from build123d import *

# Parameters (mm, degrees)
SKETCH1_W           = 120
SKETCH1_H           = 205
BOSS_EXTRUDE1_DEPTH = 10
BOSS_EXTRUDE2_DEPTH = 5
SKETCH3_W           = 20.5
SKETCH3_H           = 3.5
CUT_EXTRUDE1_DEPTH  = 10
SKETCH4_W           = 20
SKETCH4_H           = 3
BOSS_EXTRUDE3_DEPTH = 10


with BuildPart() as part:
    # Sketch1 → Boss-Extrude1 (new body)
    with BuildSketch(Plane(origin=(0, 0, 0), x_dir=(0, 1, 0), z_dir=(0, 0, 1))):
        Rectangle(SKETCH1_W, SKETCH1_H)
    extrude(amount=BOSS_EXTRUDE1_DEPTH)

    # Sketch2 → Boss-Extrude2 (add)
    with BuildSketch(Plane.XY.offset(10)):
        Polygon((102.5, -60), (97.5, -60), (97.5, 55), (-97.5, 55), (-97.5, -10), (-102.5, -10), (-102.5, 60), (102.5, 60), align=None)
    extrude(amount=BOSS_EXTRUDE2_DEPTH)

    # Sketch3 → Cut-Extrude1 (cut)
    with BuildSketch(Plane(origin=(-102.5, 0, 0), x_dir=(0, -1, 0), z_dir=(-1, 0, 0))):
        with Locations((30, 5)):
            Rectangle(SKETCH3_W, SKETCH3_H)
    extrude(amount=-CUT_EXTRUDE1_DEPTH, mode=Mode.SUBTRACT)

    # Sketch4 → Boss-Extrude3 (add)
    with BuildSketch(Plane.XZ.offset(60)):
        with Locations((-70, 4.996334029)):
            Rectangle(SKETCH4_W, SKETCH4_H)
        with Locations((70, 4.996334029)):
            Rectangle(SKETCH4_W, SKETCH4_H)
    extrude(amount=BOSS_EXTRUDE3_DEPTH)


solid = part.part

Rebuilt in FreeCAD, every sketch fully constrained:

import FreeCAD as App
import Part
import Sketcher

doc = App.newDocument("Part")
body = doc.addObject("PartDesign::Body", "Body")

# Sketch on XY plane
sketch1 = doc.addObject("Sketcher::SketchObject", "Sketch")
body.addObject(sketch1)
sketch1.AttachmentSupport = (doc.XY_Plane, [""])
sketch1.MapMode = "FlatFace"
sketch1.addGeometry([
    Part.LineSegment(App.Vector(-102, -60, 0), App.Vector(102, -60, 0)),
    Part.LineSegment(App.Vector(102, -60, 0), App.Vector(102, 60, 0)),
    Part.LineSegment(App.Vector(102, 60, 0), App.Vector(-102, 60, 0)),
    Part.LineSegment(App.Vector(-102, 60, 0), App.Vector(-102, -60, 0)),
], False)
sketch1.addConstraint([
    Sketcher.Constraint("Coincident", 0, 2, 1, 1),
    Sketcher.Constraint("Coincident", 1, 2, 2, 1),
    Sketcher.Constraint("Coincident", 2, 2, 3, 1),
    Sketcher.Constraint("Coincident", 3, 2, 0, 1),
    Sketcher.Constraint("Horizontal", 0),
    Sketcher.Constraint("Vertical", 1),
    Sketcher.Constraint("Horizontal", 2),
    Sketcher.Constraint("Vertical", 3),
    Sketcher.Constraint("Symmetric", 0, 2, 2, 2, -1, 1),
    Sketcher.Constraint("DistanceX", 0, 1, 0, 2, 205.0),
    Sketcher.Constraint("DistanceY", 1, 1, 1, 2, 120.0),
])
pad1 = doc.addObject("PartDesign::Pad", "Pad")
body.addObject(pad1)
pad1.Profile = sketch1
pad1.Length = 10

# Sketch on XY plane
sketch2 = doc.addObject("Sketcher::SketchObject", "Sketch001")
body.addObject(sketch2)
sketch2.AttachmentSupport = (doc.XY_Plane, [""])
sketch2.MapMode = "FlatFace"
sketch2.AttachmentOffset = App.Placement(App.Vector(0, 0, 10), App.Rotation())
sketch2.addGeometry([
    Part.LineSegment(App.Vector(98, -60, 0), App.Vector(102, -60, 0)),  # 0
    Part.LineSegment(App.Vector(102, -60, 0), App.Vector(102, 60, 0)),  # 1
    Part.LineSegment(App.Vector(102, 60, 0), App.Vector(-102, 60, 0)),  # 2
    Part.LineSegment(App.Vector(-102, 60, 0), App.Vector(-102, -10, 0)),  # 3
    Part.LineSegment(App.Vector(-102, -10, 0), App.Vector(-98, -10, 0)),  # 4
    Part.LineSegment(App.Vector(-98, -10, 0), App.Vector(-98, 55, 0)),  # 5
    Part.LineSegment(App.Vector(-98, 55, 0), App.Vector(98, 55, 0)),  # 6
    Part.LineSegment(App.Vector(98, 55, 0), App.Vector(98, -60, 0)),  # 7
], False)
sketch2.addConstraint([
    Sketcher.Constraint("Coincident", 0, 2, 1, 1),
    Sketcher.Constraint("Coincident", 1, 2, 2, 1),
    Sketcher.Constraint("Coincident", 2, 2, 3, 1),
    Sketcher.Constraint("Coincident", 3, 2, 4, 1),
    Sketcher.Constraint("Coincident", 4, 2, 5, 1),
    Sketcher.Constraint("Coincident", 5, 2, 6, 1),
    Sketcher.Constraint("Coincident", 6, 2, 7, 1),
    Sketcher.Constraint("Coincident", 7, 2, 0, 1),
    Sketcher.Constraint("Horizontal", 0),
    Sketcher.Constraint("Vertical", 1),
    Sketcher.Constraint("Horizontal", 2),
    Sketcher.Constraint("Vertical", 3),
    Sketcher.Constraint("Horizontal", 4),
    Sketcher.Constraint("Vertical", 5),
    Sketcher.Constraint("Horizontal", 6),
    Sketcher.Constraint("Vertical", 7),
    Sketcher.Constraint("Symmetric", 0, 2, 2, 2, -1, 1),
    Sketcher.Constraint("Equal", 0, 4),
    Sketcher.Constraint("DistanceX", 0, 1, 0, 2, 5.0),
    Sketcher.Constraint("DistanceX", 2, 2, 2, 1, 205.0),
    Sketcher.Constraint("DistanceY", 1, 1, 1, 2, 120.0),
    Sketcher.Constraint("DistanceY", 3, 2, 3, 1, 70.0),
    Sketcher.Constraint("DistanceY", 5, 1, 5, 2, 65.0),
])
pad2 = doc.addObject("PartDesign::Pad", "Pad001")
body.addObject(pad2)
pad2.Profile = sketch2
pad2.Length = 5

# Sketch on YZ plane
sketch3 = doc.addObject("Sketcher::SketchObject", "Sketch002")
body.addObject(sketch3)
sketch3.AttachmentSupport = (doc.YZ_Plane, [""])
sketch3.MapMode = "FlatFace"
sketch3.AttachmentOffset = App.Placement(App.Vector(0, 0, -102.5), App.Rotation())
sketch3.addGeometry([
    Part.LineSegment(App.Vector(-19.8, 6.8, 0), App.Vector(-19.8, 3.2, 0)),
    Part.LineSegment(App.Vector(-19.8, 3.2, 0), App.Vector(-40.2, 3.2, 0)),
    Part.LineSegment(App.Vector(-40.2, 3.2, 0), App.Vector(-40.2, 6.8, 0)),
    Part.LineSegment(App.Vector(-40.2, 6.8, 0), App.Vector(-19.8, 6.8, 0)),
], False)
sketch3.addConstraint([
    Sketcher.Constraint("Coincident", 0, 2, 1, 1),
    Sketcher.Constraint("Coincident", 1, 2, 2, 1),
    Sketcher.Constraint("Coincident", 2, 2, 3, 1),
    Sketcher.Constraint("Coincident", 3, 2, 0, 1),
    Sketcher.Constraint("Vertical", 0),
    Sketcher.Constraint("Horizontal", 1),
    Sketcher.Constraint("Vertical", 2),
    Sketcher.Constraint("Horizontal", 3),
    Sketcher.Constraint("DistanceX", 1, 2, 1, 1, 20.5),
    Sketcher.Constraint("DistanceY", 0, 2, 0, 1, 3.5),
    Sketcher.Constraint("DistanceX", 0, 2, -1, 1, 19.75),
    Sketcher.Constraint("DistanceY", -1, 1, 0, 2, 3.25),
])
pocket1 = doc.addObject("PartDesign::Pocket", "Pocket")
body.addObject(pocket1)
pocket1.Profile = sketch3
pocket1.Length = 10
pocket1.Reversed = True

# Sketch on XZ plane
sketch4 = doc.addObject("Sketcher::SketchObject", "Sketch003")
body.addObject(sketch4)
sketch4.AttachmentSupport = (doc.XZ_Plane, [""])
sketch4.MapMode = "FlatFace"
sketch4.AttachmentOffset = App.Placement(App.Vector(0, 0, 60), App.Rotation())
sketch4.addGeometry([
    Part.LineSegment(App.Vector(-80, 6.5, 0), App.Vector(-80, 3.5, 0)),  # 0
    Part.LineSegment(App.Vector(-80, 3.5, 0), App.Vector(-60, 3.5, 0)),  # 1
    Part.LineSegment(App.Vector(-60, 3.5, 0), App.Vector(-60, 6.5, 0)),  # 2
    Part.LineSegment(App.Vector(-60, 6.5, 0), App.Vector(-80, 6.5, 0)),  # 3
    Part.LineSegment(App.Vector(60, 6.5, 0), App.Vector(60, 3.5, 0)),  # 4
    Part.LineSegment(App.Vector(60, 3.5, 0), App.Vector(80, 3.5, 0)),  # 5
    Part.LineSegment(App.Vector(80, 3.5, 0), App.Vector(80, 6.5, 0)),  # 6
    Part.LineSegment(App.Vector(80, 6.5, 0), App.Vector(60, 6.5, 0)),  # 7
], False)
sketch4.addConstraint([
    Sketcher.Constraint("Coincident", 0, 2, 1, 1),
    Sketcher.Constraint("Coincident", 1, 2, 2, 1),
    Sketcher.Constraint("Coincident", 2, 2, 3, 1),
    Sketcher.Constraint("Coincident", 3, 2, 0, 1),
    Sketcher.Constraint("Coincident", 4, 2, 5, 1),
    Sketcher.Constraint("Coincident", 5, 2, 6, 1),
    Sketcher.Constraint("Coincident", 6, 2, 7, 1),
    Sketcher.Constraint("Coincident", 7, 2, 4, 1),
    Sketcher.Constraint("Vertical", 0),
    Sketcher.Constraint("Horizontal", 1),
    Sketcher.Constraint("Vertical", 2),
    Sketcher.Constraint("Horizontal", 3),
    Sketcher.Constraint("Vertical", 4),
    Sketcher.Constraint("Horizontal", 5),
    Sketcher.Constraint("Vertical", 6),
    Sketcher.Constraint("Horizontal", 7),
    Sketcher.Constraint("Symmetric", 1, 2, 4, 2, -2),
    Sketcher.Constraint("Symmetric", 3, 2, 6, 2, -2),
    Sketcher.Constraint("DistanceX", 1, 1, 1, 2, 20.0),
    Sketcher.Constraint("DistanceY", 0, 2, 0, 1, 3.0),
    Sketcher.Constraint("DistanceX", 0, 2, -1, 1, 80.0),
    Sketcher.Constraint("DistanceY", -1, 1, 0, 2, 3.496334),
])
pad3 = doc.addObject("PartDesign::Pad", "Pad002")
body.addObject(pad3)
pad3.Profile = sketch4
pad3.Length = 10

doc.recompute()
